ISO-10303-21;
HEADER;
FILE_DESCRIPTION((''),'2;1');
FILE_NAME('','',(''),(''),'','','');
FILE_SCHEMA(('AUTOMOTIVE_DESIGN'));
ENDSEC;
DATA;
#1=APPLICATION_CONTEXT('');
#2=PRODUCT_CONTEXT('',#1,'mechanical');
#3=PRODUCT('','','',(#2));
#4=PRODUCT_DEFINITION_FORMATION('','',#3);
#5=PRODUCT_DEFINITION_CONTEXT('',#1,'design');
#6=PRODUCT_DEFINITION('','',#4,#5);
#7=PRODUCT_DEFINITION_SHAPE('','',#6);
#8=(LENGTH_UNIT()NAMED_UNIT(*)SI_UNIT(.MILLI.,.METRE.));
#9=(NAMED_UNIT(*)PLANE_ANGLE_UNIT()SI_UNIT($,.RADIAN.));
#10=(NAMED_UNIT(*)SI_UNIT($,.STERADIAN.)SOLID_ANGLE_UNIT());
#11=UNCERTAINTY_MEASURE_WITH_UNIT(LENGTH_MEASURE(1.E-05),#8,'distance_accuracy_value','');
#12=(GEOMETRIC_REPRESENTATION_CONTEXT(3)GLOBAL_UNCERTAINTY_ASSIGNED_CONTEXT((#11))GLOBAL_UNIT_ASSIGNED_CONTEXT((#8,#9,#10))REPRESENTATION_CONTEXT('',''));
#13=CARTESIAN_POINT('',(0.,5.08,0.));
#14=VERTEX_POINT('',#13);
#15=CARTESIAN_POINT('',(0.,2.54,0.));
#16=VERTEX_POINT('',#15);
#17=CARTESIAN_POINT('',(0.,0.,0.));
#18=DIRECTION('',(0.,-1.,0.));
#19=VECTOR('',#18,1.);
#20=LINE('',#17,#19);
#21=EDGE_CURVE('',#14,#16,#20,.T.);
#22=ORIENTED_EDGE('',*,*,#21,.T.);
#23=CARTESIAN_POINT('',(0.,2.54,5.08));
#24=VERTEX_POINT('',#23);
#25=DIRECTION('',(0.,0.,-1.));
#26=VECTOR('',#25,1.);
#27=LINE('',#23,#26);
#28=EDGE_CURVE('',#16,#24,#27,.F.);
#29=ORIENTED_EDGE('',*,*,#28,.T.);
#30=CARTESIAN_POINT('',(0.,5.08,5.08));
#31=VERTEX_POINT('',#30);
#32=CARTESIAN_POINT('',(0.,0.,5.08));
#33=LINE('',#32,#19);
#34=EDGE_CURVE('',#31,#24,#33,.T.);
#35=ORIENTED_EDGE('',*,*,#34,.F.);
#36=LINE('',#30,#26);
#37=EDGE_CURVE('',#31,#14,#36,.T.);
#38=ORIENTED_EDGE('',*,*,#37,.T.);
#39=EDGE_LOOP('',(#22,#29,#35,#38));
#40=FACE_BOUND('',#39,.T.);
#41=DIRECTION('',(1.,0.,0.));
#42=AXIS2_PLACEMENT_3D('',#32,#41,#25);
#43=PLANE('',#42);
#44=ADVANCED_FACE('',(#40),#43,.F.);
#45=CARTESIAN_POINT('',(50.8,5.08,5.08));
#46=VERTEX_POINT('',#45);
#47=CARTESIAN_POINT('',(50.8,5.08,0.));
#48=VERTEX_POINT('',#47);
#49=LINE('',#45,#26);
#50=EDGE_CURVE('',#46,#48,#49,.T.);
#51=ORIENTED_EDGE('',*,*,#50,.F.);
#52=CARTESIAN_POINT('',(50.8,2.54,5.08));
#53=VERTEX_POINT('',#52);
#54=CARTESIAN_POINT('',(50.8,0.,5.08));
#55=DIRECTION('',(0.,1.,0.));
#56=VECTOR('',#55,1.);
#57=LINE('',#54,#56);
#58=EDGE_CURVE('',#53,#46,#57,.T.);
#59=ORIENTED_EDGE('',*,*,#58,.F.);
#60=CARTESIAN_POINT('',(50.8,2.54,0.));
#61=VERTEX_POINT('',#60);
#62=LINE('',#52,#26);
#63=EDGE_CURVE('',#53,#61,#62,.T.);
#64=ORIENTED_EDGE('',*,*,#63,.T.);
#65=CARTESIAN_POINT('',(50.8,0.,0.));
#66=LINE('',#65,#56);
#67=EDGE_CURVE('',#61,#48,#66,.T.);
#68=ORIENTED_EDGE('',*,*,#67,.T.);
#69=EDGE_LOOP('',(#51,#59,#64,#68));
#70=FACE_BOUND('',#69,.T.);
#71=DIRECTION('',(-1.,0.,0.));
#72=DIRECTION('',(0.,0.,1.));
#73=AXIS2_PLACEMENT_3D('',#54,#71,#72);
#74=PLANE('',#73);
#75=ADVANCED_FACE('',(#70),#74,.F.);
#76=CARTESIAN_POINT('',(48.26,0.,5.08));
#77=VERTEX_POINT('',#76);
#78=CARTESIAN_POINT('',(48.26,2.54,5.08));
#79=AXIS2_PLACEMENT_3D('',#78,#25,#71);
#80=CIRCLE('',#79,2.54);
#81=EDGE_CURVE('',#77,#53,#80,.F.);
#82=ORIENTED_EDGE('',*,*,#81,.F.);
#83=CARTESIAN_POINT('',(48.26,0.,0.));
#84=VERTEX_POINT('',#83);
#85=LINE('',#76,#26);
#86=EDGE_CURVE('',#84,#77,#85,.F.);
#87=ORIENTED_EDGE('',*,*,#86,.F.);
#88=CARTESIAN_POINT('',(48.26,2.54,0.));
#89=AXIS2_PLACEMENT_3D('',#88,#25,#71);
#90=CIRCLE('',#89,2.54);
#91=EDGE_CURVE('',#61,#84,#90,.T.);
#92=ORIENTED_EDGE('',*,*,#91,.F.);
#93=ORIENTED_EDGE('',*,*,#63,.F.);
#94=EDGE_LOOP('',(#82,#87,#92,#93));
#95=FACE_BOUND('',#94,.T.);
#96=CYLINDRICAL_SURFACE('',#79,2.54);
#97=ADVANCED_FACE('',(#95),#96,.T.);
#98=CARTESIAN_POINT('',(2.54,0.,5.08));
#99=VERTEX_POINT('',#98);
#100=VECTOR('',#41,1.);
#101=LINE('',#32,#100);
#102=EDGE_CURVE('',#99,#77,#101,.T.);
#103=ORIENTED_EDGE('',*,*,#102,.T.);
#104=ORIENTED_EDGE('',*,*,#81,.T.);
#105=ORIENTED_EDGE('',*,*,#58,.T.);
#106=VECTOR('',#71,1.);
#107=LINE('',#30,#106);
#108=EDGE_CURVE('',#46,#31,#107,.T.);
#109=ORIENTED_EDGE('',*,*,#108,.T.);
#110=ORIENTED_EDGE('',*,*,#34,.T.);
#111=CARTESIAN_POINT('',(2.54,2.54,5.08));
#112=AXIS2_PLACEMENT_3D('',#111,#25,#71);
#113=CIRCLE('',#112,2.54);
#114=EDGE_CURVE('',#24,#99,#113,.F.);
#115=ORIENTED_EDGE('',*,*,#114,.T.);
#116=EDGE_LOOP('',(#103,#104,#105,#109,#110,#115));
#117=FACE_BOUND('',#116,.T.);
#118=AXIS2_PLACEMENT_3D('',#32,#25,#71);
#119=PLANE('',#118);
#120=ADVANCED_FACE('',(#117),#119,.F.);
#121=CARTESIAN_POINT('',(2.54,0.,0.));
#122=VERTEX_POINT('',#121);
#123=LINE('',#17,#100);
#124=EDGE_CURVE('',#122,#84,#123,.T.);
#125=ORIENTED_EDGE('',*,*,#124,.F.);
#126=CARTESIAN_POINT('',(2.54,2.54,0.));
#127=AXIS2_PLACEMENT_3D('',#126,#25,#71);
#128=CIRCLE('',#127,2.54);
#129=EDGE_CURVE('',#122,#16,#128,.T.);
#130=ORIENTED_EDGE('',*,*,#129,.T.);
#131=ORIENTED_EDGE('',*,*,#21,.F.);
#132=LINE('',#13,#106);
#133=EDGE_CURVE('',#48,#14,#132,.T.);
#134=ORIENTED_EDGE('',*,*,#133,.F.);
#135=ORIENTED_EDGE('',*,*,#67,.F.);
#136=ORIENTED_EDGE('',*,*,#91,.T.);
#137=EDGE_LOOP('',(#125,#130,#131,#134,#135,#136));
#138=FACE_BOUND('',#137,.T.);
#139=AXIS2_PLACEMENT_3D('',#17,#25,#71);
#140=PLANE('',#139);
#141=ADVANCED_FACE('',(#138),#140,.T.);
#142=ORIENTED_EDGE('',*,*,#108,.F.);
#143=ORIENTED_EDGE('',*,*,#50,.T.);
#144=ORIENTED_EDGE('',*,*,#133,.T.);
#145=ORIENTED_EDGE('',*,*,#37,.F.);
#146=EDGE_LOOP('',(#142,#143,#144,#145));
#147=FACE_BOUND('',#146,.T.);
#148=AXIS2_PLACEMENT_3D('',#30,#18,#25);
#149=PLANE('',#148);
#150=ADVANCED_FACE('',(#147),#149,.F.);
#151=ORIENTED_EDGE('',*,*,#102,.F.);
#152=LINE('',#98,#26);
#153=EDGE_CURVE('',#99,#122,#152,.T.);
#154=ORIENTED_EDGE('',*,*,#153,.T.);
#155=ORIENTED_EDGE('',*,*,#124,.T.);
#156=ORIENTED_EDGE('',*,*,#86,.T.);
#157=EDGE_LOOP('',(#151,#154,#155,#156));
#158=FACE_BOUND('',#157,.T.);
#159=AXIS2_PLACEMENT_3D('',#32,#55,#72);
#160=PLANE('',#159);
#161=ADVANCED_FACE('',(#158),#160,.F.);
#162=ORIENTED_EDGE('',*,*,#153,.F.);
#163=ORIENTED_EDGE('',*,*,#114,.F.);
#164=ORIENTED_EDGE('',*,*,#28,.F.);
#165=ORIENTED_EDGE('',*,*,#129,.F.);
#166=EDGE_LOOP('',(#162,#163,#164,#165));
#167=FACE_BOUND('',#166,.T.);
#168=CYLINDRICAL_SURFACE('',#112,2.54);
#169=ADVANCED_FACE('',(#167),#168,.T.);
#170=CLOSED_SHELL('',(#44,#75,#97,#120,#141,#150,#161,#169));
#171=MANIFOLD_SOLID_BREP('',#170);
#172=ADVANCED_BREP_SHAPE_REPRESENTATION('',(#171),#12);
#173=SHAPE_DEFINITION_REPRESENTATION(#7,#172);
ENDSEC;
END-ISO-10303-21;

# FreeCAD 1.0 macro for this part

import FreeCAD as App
import Part
import Sketcher
from FreeCAD import Vector
Q = App.Units.Quantity


def edges_at(feature, points):
    """Names of the edges that pass closest to the given points."""
    edges = feature.Shape.Edges
    near = lambda p: min(range(len(edges)), key=lambda i: edges[i].distToShape(Part.Vertex(*p))[0])
    return sorted({f"Edge{near(p) + 1}" for p in points})


def add_polygon(sketch, points):
    """Adds a closed chain of lines whose ends are joined by coincident constraints."""
    first, n = sketch.GeometryCount, len(points)
    for a, b in zip(points, points[1:] + points[:1]):
        sketch.addGeometry(Part.LineSegment(App.Vector(*a, 0), App.Vector(*b, 0)), False)
    for i in range(n):
        sketch.addConstraint(Sketcher.Constraint("Coincident", first + i, 2, first + (i + 1) % n, 1))

doc = App.newDocument("Part")
params = doc.addObject("Spreadsheet::Sheet", "Params")
for row, (alias, value) in enumerate([
    ("sketch1_width", "2 in"),
    ("sketch1_height", "0.2 in"),
    ("pad1_length", "0.2 in"),
    ("fillet_radius", "0.1 in"),
], start=1):
    params.set(f"A{row}", alias)
    params.set(f"B{row}", "=" + value)
    params.setAlias(f"B{row}", alias)

body = doc.addObject("PartDesign::Body", "Body")

# Sketch on XY plane
sketch1 = body.newObject("Sketcher::SketchObject", "Sketch")
sketch1.AttachmentSupport = (doc.getObject("XY_Plane"), [""])
sketch1.MapMode = "FlatFace"
add_polygon(sketch1, [(0, 5), (0, 0), (51, 0), (51, 5)])  # lines 0-3
sketch1.addConstraint(Sketcher.Constraint("Vertical", 0))
sketch1.addConstraint(Sketcher.Constraint("Horizontal", 1))
sketch1.addConstraint(Sketcher.Constraint("Vertical", 2))
sketch1.addConstraint(Sketcher.Constraint("Horizontal", 3))
sketch1.addConstraint(Sketcher.Constraint("Coincident", 0, 2, -1, 1))
sketch1.addConstraint(Sketcher.Constraint("DistanceX", 1, 1, 1, 2, Q("2 in")))
sketch1.addConstraint(Sketcher.Constraint("DistanceY", 0, 2, 0, 1, Q("0.2 in")))
sketch1.setExpression("Constraints[9]", "Params.sketch1_width")
sketch1.setExpression("Constraints[10]", "Params.sketch1_height")
pad1 = body.newObject("PartDesign::Pad", "Pad")
pad1.Profile = sketch1
pad1.setExpression("Length", "Params.pad1_length")
doc.recompute()

fillet = body.newObject("PartDesign::Fillet", "Fillet")
fillet.Base = (pad1, edges_at(pad1, [(50.8, 0, 2.54), (0, 0, 2.54)]))
fillet.setExpression("Radius", "Params.fillet_radius")

doc.recompute()
